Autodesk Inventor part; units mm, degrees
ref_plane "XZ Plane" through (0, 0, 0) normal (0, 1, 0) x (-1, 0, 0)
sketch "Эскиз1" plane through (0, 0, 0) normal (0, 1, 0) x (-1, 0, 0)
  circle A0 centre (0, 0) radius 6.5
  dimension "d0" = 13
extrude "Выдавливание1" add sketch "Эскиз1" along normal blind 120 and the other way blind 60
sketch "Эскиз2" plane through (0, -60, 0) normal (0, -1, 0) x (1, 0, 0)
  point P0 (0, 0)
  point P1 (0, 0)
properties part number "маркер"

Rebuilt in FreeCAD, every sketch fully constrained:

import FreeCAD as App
import Part
import Sketcher
from FreeCAD import Vector

doc = App.newDocument("Part")
params = doc.addObject("Spreadsheet::Sheet", "Params")
for row, (alias, value) in enumerate([
    ("sketch1_diameter", "13 mm"),
    ("pad1_length", "120 mm"),
    ("pad1_length2", "60 mm"),
], start=1):
    params.set(f"A{row}", alias)
    params.set(f"B{row}", "=" + value)
    params.setAlias(f"B{row}", alias)

body = doc.addObject("PartDesign::Body", "Body")

# Sketch on XZ plane
sketch1 = body.newObject("Sketcher::SketchObject", "Sketch")
sketch1.AttachmentSupport = (doc.getObject("XZ_Plane"), [""])
sketch1.MapMode = "FlatFace"
sketch1.addGeometry(Part.Circle(Vector(0, 0, 0), Vector(0, 0, 1), 6.5), False)
sketch1.addConstraint([
    Sketcher.Constraint("Coincident", 0, 3, -1, 1),
    Sketcher.Constraint("Diameter", 0, 13.0),
])
sketch1.setExpression("Constraints[1]", "Params.sketch1_diameter")
pad1 = body.newObject("PartDesign::Pad", "Pad")
pad1.Profile = sketch1
pad1.Type = "TwoLengths"
pad1.setExpression("Length", "Params.pad1_length")
pad1.setExpression("Length2", "Params.pad1_length2")
pad1.Reversed = True

doc.recompute()
